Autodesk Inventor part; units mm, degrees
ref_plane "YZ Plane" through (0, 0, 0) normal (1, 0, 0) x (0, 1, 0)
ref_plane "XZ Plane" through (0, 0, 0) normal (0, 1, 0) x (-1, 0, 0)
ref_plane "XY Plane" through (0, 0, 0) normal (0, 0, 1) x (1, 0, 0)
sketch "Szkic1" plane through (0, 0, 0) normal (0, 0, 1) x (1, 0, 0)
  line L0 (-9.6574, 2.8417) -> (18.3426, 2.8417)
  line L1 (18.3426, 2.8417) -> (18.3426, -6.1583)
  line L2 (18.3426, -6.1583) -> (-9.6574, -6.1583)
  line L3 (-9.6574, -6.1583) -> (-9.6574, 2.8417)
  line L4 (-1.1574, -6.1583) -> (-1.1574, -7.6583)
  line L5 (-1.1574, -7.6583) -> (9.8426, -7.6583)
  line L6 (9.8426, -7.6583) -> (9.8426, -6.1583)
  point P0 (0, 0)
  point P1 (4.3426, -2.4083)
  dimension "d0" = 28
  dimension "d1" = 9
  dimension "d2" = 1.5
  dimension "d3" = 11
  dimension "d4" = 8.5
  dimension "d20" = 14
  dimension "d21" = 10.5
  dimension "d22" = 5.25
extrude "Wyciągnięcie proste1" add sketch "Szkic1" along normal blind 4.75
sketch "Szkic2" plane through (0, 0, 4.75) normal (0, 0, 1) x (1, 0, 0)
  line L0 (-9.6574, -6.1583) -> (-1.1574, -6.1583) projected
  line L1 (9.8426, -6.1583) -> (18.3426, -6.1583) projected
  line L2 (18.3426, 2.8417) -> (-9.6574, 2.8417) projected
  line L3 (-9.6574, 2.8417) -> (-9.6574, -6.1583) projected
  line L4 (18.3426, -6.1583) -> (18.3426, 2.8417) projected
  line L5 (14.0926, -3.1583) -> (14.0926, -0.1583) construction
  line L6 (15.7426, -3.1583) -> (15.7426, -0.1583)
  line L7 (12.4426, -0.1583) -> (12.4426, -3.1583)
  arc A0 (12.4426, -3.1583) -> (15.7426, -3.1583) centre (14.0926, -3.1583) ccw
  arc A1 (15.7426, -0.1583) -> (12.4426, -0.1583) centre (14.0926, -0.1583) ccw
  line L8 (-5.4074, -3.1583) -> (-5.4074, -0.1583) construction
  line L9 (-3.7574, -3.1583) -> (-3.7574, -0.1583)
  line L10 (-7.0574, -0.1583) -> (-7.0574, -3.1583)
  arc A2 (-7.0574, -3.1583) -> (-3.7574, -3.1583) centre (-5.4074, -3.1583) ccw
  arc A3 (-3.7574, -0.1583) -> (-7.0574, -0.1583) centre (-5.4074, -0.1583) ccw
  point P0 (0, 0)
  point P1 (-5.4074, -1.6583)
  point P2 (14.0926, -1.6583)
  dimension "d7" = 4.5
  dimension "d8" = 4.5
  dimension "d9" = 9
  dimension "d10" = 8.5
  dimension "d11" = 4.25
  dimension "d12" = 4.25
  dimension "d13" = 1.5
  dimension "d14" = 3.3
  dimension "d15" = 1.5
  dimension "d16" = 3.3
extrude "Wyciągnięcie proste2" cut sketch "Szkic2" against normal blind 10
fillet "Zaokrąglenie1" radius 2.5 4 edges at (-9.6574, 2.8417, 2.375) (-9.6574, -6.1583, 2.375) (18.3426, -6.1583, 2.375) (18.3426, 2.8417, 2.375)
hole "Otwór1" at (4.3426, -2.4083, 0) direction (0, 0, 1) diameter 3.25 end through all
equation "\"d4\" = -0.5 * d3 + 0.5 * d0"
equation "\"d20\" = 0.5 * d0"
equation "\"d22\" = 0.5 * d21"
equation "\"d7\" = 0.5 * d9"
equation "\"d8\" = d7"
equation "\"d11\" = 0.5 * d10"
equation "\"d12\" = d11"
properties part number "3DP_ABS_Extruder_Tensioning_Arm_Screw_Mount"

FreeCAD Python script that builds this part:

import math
import FreeCAD as App
import Part
import Sketcher
from FreeCAD import Vector
Q = App.Units.Quantity


def edges_at(feature, points):
    """Names of the edges that pass closest to the given points."""
    edges = feature.Shape.Edges
    near = lambda p: min(range(len(edges)), key=lambda i: edges[i].distToShape(Part.Vertex(*p))[0])
    return sorted({f"Edge{near(p) + 1}" for p in points})

doc = App.newDocument("Part")
body = doc.addObject("PartDesign::Body", "Body")

# Sketch on XY plane
sketch1 = body.newObject("Sketcher::SketchObject", "Sketch")
sketch1.AttachmentSupport = (doc.getObject("XY_Plane"), [""])
sketch1.MapMode = "FlatFace"
sketch1.addGeometry([
    Part.LineSegment(Vector(18.3, 2.8, 0), Vector(-9.7, 2.8, 0)),  # 0
    Part.LineSegment(Vector(-9.7, 2.8, 0), Vector(-9.7, -6.2, 0)),  # 1
    Part.LineSegment(Vector(-9.7, -6.2, 0), Vector(-1.2, -6.2, 0)),  # 2
    Part.LineSegment(Vector(-1.2, -6.2, 0), Vector(-1.2, -7.7, 0)),  # 3
    Part.LineSegment(Vector(-1.2, -7.7, 0), Vector(9.8, -7.7, 0)),  # 4
    Part.LineSegment(Vector(9.8, -7.7, 0), Vector(9.8, -6.2, 0)),  # 5
    Part.LineSegment(Vector(9.8, -6.2, 0), Vector(18.3, -6.2, 0)),  # 6
    Part.LineSegment(Vector(18.3, -6.2, 0), Vector(18.3, 2.8, 0)),  # 7
], False)
sketch1.addConstraint([
    Sketcher.Constraint("Coincident", 0, 2, 1, 1),
    Sketcher.Constraint("Coincident", 1, 2, 2, 1),
    Sketcher.Constraint("Coincident", 2, 2, 3, 1),
    Sketcher.Constraint("Coincident", 3, 2, 4, 1),
    Sketcher.Constraint("Coincident", 4, 2, 5, 1),
    Sketcher.Constraint("Coincident", 5, 2, 6, 1),
    Sketcher.Constraint("Coincident", 6, 2, 7, 1),
    Sketcher.Constraint("Coincident", 7, 2, 0, 1),
    Sketcher.Constraint("Horizontal", 0),
    Sketcher.Constraint("Vertical", 1),
    Sketcher.Constraint("Horizontal", 2),
    Sketcher.Constraint("Vertical", 3),
    Sketcher.Constraint("Horizontal", 4),
    Sketcher.Constraint("Vertical", 5),
    Sketcher.Constraint("Horizontal", 6),
    Sketcher.Constraint("Vertical", 7),
    Sketcher.Constraint("Horizontal", 2, 2, 5, 2),
    Sketcher.Constraint("Equal", 2, 6),
    Sketcher.Constraint("DistanceX", 0, 2, 0, 1, Q("28 mm")),
    Sketcher.Constraint("DistanceX", 4, 1, 4, 2, Q("11 mm")),
    Sketcher.Constraint("DistanceY", 1, 2, 1, 1, Q("9 mm")),
    Sketcher.Constraint("DistanceY", 3, 2, 3, 1, Q("1.5 mm")),
    Sketcher.Constraint("DistanceX", 0, 2, -1, 1, Q("9.6574 mm")),
    Sketcher.Constraint("DistanceY", -1, 1, 0, 2, Q("2.8417 mm")),
])
pad1 = body.newObject("PartDesign::Pad", "Pad")
pad1.Profile = sketch1
pad1.Length = 4.75

# Sketch on XY plane
sketch2 = body.newObject("Sketcher::SketchObject", "Sketch001")
sketch2.AttachmentSupport = (doc.getObject("XY_Plane"), [""])
sketch2.MapMode = "FlatFace"
sketch2.AttachmentOffset = App.Placement(Vector(0, 0, 4.75), App.Rotation())
sketch2.addGeometry([
    Part.ArcOfCircle(Part.Circle(Vector(14.1, -3.2, 0), Vector(0, 0, 1), 1.6), math.radians(180), math.radians(360)),  # 0
    Part.LineSegment(Vector(15.7, -3.2, 0), Vector(15.7, -0.2, 0)),  # 1
    Part.ArcOfCircle(Part.Circle(Vector(14.1, -0.2, 0), Vector(0, 0, 1), 1.7), math.radians(0), math.radians(180)),  # 2
    Part.LineSegment(Vector(12.4, -0.2, 0), Vector(12.4, -3.2, 0)),  # 3
    Part.ArcOfCircle(Part.Circle(Vector(-5.4, -3.2, 0), Vector(0, 0, 1), 1.7), math.radians(180), math.radians(360)),  # 4
    Part.LineSegment(Vector(-3.8, -3.2, 0), Vector(-3.8, -0.2, 0)),  # 5
    Part.ArcOfCircle(Part.Circle(Vector(-5.4, -0.2, 0), Vector(0, 0, 1), 1.6), math.radians(0), math.radians(180)),  # 6
    Part.LineSegment(Vector(-7.1, -0.2, 0), Vector(-7.1, -3.2, 0)),  # 7
], False)
sketch2.addConstraint([
    Sketcher.Constraint("Tangent", 0, 2, 1, 1),
    Sketcher.Constraint("Tangent", 1, 2, 2, 1),
    Sketcher.Constraint("Tangent", 2, 2, 3, 1),
    Sketcher.Constraint("Tangent", 3, 2, 0, 1),
    Sketcher.Constraint("Tangent", 4, 2, 5, 1),
    Sketcher.Constraint("Tangent", 5, 2, 6, 1),
    Sketcher.Constraint("Tangent", 6, 2, 7, 1),
    Sketcher.Constraint("Tangent", 7, 2, 4, 1),
    Sketcher.Constraint("Vertical", 1),
    Sketcher.Constraint("Vertical", 3),
    Sketcher.Constraint("Vertical", 5),
    Sketcher.Constraint("Vertical", 7),
    Sketcher.Constraint("Equal", 2, 4),
    Sketcher.Constraint("Horizontal", 0, 3, 4, 3),
    Sketcher.Constraint("Horizontal", 2, 3, 6, 3),
    Sketcher.Constraint("Radius", 0, Q("1.65 mm")),
    Sketcher.Constraint("DistanceY", 1, 1, 1, 2, Q("3 mm")),
    Sketcher.Constraint("DistanceX", 4, 3, 0, 3, Q("19.5 mm")),
    Sketcher.Constraint("DistanceX", -1, 1, 0, 3, Q("14.0926 mm")),
    Sketcher.Constraint("DistanceY", 0, 3, -1, 1, Q("3.1583 mm")),
])
pocket1 = body.newObject("PartDesign::Pocket", "Pocket")
pocket1.Profile = sketch2
pocket1.Length = 10
doc.recompute()

fillet = body.newObject("PartDesign::Fillet", "Fillet")
fillet.Base = (pocket1, edges_at(pocket1, [
    (-9.657, 2.842, 2.375),
    (-9.657, -6.158, 2.375),
    (18.343, -6.158, 2.375),
    (18.343, 2.842, 2.375),
]))
fillet.Radius = 2.5

# Sketch on XY plane
sketch3 = body.newObject("Sketcher::SketchObject", "Sketch002")
sketch3.AttachmentSupport = (doc.getObject("XY_Plane"), [""])
sketch3.MapMode = "FlatFace"
sketch3.addGeometry(Part.Circle(Vector(4.3, -2.4, 0), Vector(0, 0, 1), 1.6), False)
sketch3.addConstraint([
    Sketcher.Constraint("Diameter", 0, Q("3.25 mm")),
    Sketcher.Constraint("DistanceX", -1, 1, 0, 3, Q("4.3426 mm")),
    Sketcher.Constraint("DistanceY", 0, 3, -1, 1, Q("2.4083 mm")),
])
doc.recompute()
hole = body.newObject("PartDesign::Hole", "Hole")
hole.Profile = sketch3
hole.ThreadType = "None"
hole.Diameter = 3.25
hole.DepthType = "ThroughAll"
hole.Reversed = True

doc.recompute()
